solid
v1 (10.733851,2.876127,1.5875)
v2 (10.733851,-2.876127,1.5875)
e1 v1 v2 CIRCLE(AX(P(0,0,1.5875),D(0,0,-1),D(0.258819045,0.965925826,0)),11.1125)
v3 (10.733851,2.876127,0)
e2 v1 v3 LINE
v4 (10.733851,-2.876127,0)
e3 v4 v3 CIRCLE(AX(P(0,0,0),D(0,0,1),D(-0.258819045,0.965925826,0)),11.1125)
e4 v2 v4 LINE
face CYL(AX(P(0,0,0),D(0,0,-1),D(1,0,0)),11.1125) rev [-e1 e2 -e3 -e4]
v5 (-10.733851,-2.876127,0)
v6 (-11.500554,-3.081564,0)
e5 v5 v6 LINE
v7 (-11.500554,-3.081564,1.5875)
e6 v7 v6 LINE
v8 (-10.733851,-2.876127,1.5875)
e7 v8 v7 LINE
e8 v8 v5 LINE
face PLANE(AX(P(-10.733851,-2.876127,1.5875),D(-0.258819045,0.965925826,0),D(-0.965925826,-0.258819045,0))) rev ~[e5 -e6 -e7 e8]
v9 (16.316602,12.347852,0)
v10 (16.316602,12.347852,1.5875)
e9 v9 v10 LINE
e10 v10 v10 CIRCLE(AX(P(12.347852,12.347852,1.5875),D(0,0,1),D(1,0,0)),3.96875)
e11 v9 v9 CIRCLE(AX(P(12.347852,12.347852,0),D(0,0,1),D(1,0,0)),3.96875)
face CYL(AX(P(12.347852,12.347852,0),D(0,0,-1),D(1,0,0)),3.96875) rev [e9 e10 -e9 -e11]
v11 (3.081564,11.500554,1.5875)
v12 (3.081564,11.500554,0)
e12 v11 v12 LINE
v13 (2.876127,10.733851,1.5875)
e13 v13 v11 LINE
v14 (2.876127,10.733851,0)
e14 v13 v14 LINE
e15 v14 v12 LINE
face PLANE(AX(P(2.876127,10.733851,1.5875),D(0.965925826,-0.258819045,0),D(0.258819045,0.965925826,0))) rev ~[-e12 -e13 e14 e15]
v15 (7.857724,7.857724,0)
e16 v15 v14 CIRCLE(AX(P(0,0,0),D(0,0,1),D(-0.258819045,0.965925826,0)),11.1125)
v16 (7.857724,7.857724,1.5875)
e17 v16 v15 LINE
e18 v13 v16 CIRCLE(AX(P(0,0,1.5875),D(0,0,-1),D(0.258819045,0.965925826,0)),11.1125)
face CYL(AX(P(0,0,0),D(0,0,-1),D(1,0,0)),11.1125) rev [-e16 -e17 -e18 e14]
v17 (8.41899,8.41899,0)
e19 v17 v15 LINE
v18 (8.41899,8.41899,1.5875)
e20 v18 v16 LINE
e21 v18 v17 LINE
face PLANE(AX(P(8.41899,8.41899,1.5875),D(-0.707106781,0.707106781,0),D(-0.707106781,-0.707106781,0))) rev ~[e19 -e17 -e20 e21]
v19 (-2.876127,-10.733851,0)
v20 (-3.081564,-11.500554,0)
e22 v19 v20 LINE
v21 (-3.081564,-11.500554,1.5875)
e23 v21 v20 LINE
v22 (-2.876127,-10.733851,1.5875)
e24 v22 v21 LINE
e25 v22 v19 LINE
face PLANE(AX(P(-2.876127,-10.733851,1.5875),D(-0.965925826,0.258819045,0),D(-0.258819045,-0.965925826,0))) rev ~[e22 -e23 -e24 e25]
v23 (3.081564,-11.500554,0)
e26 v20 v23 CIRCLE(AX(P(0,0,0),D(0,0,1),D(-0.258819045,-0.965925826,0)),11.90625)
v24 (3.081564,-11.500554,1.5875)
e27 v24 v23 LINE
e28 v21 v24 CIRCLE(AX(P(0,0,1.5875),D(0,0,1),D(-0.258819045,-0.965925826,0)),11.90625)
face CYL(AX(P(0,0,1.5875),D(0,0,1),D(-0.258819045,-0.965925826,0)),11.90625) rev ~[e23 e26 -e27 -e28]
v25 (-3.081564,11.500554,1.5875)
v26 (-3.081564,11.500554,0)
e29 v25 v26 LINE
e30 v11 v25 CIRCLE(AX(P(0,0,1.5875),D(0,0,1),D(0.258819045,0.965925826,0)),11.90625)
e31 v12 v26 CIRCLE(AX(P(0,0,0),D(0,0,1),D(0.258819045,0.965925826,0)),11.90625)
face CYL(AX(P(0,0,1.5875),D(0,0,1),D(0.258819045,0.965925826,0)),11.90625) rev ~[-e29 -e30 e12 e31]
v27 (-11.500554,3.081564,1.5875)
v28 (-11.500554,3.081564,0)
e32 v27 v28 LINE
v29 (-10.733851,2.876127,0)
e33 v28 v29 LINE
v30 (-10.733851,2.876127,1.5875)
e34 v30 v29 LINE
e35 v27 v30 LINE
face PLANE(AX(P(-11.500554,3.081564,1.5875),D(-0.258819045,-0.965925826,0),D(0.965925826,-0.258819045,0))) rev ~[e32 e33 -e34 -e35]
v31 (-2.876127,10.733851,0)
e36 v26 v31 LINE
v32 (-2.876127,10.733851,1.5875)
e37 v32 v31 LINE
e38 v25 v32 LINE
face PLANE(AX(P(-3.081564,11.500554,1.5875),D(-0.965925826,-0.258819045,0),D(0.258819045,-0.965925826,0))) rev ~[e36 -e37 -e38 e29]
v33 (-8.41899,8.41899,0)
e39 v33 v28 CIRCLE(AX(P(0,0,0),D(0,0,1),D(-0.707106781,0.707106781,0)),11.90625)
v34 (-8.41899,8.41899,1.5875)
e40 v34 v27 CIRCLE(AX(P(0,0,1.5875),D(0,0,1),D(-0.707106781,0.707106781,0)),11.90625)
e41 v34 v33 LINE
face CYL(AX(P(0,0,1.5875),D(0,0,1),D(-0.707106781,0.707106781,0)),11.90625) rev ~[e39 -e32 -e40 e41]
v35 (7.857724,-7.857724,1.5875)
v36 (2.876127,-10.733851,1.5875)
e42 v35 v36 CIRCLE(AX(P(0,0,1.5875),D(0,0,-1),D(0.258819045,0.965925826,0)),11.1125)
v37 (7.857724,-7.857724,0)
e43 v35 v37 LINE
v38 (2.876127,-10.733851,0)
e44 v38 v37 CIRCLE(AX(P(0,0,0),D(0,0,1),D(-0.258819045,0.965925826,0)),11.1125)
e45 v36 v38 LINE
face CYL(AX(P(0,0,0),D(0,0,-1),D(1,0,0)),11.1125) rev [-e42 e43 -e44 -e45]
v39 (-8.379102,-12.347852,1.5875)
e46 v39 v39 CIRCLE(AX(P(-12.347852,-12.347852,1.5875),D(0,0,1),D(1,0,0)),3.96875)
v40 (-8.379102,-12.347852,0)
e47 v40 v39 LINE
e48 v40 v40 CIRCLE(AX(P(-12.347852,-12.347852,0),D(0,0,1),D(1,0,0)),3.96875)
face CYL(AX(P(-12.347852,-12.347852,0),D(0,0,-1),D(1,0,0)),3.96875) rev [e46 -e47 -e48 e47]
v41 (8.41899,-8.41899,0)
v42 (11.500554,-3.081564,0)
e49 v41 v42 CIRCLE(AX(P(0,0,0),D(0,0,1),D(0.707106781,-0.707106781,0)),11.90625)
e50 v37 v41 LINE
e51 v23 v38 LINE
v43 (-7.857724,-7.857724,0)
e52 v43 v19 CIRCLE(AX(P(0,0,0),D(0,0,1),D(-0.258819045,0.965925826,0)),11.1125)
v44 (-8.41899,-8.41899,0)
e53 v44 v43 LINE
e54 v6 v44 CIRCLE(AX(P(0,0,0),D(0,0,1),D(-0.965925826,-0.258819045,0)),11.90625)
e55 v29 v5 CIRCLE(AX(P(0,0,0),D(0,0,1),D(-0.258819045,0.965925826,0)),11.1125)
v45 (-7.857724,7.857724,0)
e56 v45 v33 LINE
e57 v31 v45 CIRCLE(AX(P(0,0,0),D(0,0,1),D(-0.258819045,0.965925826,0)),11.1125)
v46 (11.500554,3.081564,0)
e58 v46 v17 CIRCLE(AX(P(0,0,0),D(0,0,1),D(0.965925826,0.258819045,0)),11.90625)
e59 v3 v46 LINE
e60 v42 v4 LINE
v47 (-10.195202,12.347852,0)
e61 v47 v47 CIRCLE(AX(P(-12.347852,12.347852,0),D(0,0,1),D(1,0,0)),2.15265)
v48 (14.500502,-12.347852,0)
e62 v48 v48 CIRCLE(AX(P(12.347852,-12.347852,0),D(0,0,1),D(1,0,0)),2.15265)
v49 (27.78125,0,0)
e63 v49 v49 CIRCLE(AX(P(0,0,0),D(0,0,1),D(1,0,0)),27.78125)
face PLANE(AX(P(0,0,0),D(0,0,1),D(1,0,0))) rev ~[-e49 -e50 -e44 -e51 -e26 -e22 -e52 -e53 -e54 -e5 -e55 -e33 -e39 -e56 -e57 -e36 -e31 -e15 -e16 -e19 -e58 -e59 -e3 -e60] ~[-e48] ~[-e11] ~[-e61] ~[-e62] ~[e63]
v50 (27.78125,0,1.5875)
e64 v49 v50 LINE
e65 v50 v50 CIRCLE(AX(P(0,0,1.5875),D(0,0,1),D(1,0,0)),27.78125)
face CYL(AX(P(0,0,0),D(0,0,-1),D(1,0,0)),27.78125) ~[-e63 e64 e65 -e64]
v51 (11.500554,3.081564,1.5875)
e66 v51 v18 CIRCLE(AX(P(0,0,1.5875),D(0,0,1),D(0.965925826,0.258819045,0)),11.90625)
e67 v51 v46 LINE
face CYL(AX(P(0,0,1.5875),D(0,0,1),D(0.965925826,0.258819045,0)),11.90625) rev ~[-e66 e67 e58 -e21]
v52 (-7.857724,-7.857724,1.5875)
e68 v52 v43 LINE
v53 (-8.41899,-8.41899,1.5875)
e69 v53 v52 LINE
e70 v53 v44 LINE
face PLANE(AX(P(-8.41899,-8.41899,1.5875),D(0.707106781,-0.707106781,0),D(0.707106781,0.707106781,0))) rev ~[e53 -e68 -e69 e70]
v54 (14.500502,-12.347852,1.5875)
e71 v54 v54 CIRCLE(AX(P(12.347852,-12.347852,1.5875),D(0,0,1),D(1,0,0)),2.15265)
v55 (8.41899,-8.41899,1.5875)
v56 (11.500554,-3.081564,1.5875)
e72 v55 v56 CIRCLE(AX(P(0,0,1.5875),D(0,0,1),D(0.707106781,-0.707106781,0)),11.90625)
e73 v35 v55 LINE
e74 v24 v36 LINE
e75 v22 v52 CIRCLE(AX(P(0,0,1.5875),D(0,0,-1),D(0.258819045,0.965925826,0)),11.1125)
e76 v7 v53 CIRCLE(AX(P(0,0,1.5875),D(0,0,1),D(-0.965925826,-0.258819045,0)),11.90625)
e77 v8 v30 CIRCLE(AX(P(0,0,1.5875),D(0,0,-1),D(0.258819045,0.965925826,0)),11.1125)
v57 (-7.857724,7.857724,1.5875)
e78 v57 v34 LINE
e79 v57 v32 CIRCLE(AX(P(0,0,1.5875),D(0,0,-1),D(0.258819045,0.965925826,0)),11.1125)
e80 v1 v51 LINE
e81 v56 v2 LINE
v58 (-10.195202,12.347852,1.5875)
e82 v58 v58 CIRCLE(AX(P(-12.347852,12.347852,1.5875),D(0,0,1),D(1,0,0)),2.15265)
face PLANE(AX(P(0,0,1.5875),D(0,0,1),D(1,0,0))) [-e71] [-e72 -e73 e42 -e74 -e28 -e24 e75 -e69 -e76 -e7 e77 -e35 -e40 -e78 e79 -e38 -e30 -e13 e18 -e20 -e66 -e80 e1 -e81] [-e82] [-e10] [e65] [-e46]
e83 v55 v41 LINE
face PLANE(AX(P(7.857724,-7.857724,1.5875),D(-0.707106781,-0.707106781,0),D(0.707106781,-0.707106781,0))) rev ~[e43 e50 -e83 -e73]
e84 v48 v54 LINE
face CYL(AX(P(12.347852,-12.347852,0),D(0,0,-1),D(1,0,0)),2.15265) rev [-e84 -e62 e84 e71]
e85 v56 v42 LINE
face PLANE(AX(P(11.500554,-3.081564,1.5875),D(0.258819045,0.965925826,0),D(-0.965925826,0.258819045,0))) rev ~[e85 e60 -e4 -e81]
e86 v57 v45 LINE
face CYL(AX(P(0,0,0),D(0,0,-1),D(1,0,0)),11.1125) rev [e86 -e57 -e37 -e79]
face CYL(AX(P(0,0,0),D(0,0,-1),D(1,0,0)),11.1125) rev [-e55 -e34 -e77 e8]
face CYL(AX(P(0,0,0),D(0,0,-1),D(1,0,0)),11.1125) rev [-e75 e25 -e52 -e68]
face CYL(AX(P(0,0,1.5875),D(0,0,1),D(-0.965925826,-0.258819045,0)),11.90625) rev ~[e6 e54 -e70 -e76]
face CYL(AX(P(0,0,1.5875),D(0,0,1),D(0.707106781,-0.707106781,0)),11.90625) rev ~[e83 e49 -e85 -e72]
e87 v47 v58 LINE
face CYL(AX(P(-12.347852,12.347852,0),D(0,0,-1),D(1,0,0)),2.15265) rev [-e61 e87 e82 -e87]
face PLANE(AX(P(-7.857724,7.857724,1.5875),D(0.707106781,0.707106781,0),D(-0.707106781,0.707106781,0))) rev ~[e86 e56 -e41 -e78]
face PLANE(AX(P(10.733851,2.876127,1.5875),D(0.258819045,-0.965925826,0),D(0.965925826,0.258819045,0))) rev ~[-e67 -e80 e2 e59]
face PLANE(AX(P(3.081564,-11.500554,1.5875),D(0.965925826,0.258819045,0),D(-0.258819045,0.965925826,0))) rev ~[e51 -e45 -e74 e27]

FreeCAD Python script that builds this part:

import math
import FreeCAD as App
import Part
import Sketcher
Q = App.Units.Quantity

doc = App.newDocument("Part")
params = doc.addObject("Spreadsheet::Sheet", "Params")
for row, (alias, value) in enumerate([
    ("sketch1_diameter", "2.1875 in"),
    ("sketch1_diameter2", "0.3125 in"),
    ("sketch1_diameter3", "0.875 in"),
    ("pad1_length", "0.0625 in"),
    ("sketch2_radius", "0.4375 in"),
    ("sketch2_radius2", "0.46875 in"),
], start=1):
    params.set(f"A{row}", alias)
    params.set(f"B{row}", "=" + value)
    params.setAlias(f"B{row}", alias)

body = doc.addObject("PartDesign::Body", "Body")

# Sketch on XY plane
sketch1 = doc.addObject("Sketcher::SketchObject", "Sketch")
body.addObject(sketch1)
sketch1.AttachmentSupport = (doc.XY_Plane, [""])
sketch1.MapMode = "FlatFace"
sketch1.addGeometry([
    Part.Circle(App.Vector(0, 0, 0), App.Vector(0, 0, 1), 27.8),  # 0
    Part.Circle(App.Vector(-12.3, -12.3, 0), App.Vector(0, 0, 1), 4),  # 1
    Part.Circle(App.Vector(0, 0, 0), App.Vector(0, 0, 1), 11.1),  # 2
    Part.Circle(App.Vector(12.3, -12.3, 0), App.Vector(0, 0, 1), 2.2),  # 3
    Part.Circle(App.Vector(-12.3, 12.3, 0), App.Vector(0, 0, 1), 2.2),  # 4
    Part.Circle(App.Vector(12.3, 12.3, 0), App.Vector(0, 0, 1), 4),  # 5
], False)
sketch1.addConstraint([
    Sketcher.Constraint("Coincident", 0, 3, -1, 1),
    Sketcher.Constraint("Coincident", 2, 3, -1, 1),
    Sketcher.Constraint("Equal", 3, 4),
    Sketcher.Constraint("Equal", 1, 5),
    Sketcher.Constraint("Symmetric", 3, 3, 4, 3, -1, 1),
    Sketcher.Constraint("Symmetric", 1, 3, 5, 3, -1, 1),
    Sketcher.Constraint("Symmetric", 1, 3, 3, 3, -2),
    Sketcher.Constraint("Diameter", 0, Q("2.1875 in")),
    Sketcher.Constraint("Diameter", 1, Q("0.3125 in")),
    Sketcher.Constraint("Diameter", 2, Q("0.875 in")),
    Sketcher.Constraint("Diameter", 3, Q("0.1695 in")),
    Sketcher.Constraint("DistanceX", 1, 3, -1, 1, 12.347852),
    Sketcher.Constraint("DistanceY", 1, 3, -1, 1, 12.347852),
])
sketch1.setExpression("Constraints[7]", "Params.sketch1_diameter")
sketch1.setExpression("Constraints[8]", "Params.sketch1_diameter2")
sketch1.setExpression("Constraints[9]", "Params.sketch1_diameter3")
pad1 = doc.addObject("PartDesign::Pad", "Pad")
body.addObject(pad1)
pad1.Profile = sketch1
pad1.setExpression("Length", "Params.pad1_length")

# Sketch on XY plane
sketch2 = doc.addObject("Sketcher::SketchObject", "Sketch001")
body.addObject(sketch2)
sketch2.AttachmentSupport = (doc.XY_Plane, [""])
sketch2.MapMode = "FlatFace"
sketch2.AttachmentOffset = App.Placement(App.Vector(0, 0, 0.0625 * 25.4), App.Rotation())
sketch2.addGeometry([
    Part.LineSegment(App.Vector(-3.1, 11.5, 0), App.Vector(-2.9, 10.7, 0)),
    Part.ArcOfCircle(Part.Circle(App.Vector(0, 0, 0), App.Vector(0, 0, 1), 11.1), math.radians(75), math.radians(105)),
    Part.LineSegment(App.Vector(2.9, 10.7, 0), App.Vector(3.1, 11.5, 0)),
    Part.ArcOfCircle(Part.Circle(App.Vector(0, 0, 0), App.Vector(0, 0, 1), 11.9), math.radians(75), math.radians(105)),
], False)
sketch2.addConstraint([
    Sketcher.Constraint("Coincident", 0, 2, 1, 2),
    Sketcher.Constraint("Coincident", 1, 1, 2, 1),
    Sketcher.Constraint("Coincident", 2, 2, 3, 1),
    Sketcher.Constraint("Coincident", 3, 2, 0, 1),
    Sketcher.Constraint("Coincident", 1, 3, -1, 1),
    Sketcher.Constraint("Coincident", 3, 3, -1, 1),
    Sketcher.Constraint("Horizontal", 0, 2, 1, 1),
    Sketcher.Constraint("Horizontal", 2, 2, 3, 2),
    Sketcher.Constraint("Angle", 0, Q("-75 deg")),
    Sketcher.Constraint("Radius", 1, Q("0.4375 in")),
    Sketcher.Constraint("Radius", 3, Q("0.46875 in")),
    Sketcher.Constraint("DistanceY", -1, 1, 0, 2, 10.733851),
])
sketch2.setExpression("Constraints[9]", "Params.sketch2_radius")
sketch2.setExpression("Constraints[10]", "Params.sketch2_radius2")
pocket1 = doc.addObject("PartDesign::Pocket", "Pocket")
body.addObject(pocket1)
pocket1.Profile = sketch2
pocket1.Type = "ThroughAll"
doc.recompute()

polarpattern = doc.addObject("PartDesign::PolarPattern", "PolarPattern")
body.addObject(polarpattern)
polarpattern.Originals = [pocket1]
polarpattern.Axis = (doc.Z_Axis, [""])
polarpattern.Angle = 360
polarpattern.Occurrences = 6
body.Tip = polarpattern

doc.recompute()
